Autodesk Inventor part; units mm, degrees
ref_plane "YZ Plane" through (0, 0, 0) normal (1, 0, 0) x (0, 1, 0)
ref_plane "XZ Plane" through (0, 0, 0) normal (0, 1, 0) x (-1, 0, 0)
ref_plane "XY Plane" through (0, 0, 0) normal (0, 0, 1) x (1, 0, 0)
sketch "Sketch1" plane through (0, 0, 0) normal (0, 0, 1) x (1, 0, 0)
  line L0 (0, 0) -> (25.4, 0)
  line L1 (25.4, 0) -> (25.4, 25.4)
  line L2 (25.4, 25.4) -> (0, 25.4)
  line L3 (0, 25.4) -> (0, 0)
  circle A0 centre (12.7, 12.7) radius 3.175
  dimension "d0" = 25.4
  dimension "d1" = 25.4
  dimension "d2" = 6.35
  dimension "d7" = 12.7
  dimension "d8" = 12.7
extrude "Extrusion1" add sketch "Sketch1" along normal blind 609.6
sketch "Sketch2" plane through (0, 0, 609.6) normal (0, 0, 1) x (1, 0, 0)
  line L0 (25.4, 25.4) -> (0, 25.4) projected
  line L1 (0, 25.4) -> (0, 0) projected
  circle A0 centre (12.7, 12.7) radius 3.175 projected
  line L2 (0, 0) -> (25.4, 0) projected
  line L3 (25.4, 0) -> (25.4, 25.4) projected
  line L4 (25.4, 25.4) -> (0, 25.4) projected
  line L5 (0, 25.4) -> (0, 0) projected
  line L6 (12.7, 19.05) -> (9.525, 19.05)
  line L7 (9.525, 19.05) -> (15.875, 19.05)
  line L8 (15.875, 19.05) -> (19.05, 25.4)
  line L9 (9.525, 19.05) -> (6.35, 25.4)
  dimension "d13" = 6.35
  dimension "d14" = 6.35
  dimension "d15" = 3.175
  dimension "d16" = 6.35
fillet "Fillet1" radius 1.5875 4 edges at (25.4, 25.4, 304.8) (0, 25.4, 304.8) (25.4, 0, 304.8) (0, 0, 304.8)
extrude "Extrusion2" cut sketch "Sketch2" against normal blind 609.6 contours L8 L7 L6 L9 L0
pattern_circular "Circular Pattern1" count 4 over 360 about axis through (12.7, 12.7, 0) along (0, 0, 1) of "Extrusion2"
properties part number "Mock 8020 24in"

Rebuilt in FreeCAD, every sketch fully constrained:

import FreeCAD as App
import Part
import Sketcher
Q = App.Units.Quantity


def edges_at(feature, points):
    """Names of the edges that pass closest to the given points."""
    edges = feature.Shape.Edges
    near = lambda p: min(range(len(edges)), key=lambda i: edges[i].distToShape(Part.Vertex(*p))[0])
    return sorted({f"Edge{near(p) + 1}" for p in points})


def add_polygon(sketch, points):
    """Adds a closed chain of lines whose ends are joined by coincident constraints."""
    first, n = sketch.GeometryCount, len(points)
    for a, b in zip(points, points[1:] + points[:1]):
        sketch.addGeometry(Part.LineSegment(App.Vector(*a, 0), App.Vector(*b, 0)), False)
    for i in range(n):
        sketch.addConstraint(Sketcher.Constraint("Coincident", first + i, 2, first + (i + 1) % n, 1))

doc = App.newDocument("Part")
body = doc.addObject("PartDesign::Body", "Body")

# Sketch on XY plane
sketch1 = doc.addObject("Sketcher::SketchObject", "Sketch")
body.addObject(sketch1)
sketch1.AttachmentSupport = (doc.XY_Plane, [""])
sketch1.MapMode = "FlatFace"
add_polygon(sketch1, [(0, 25.4), (0, 0), (25.4, 0), (25.4, 25.4)])  # lines 0-3
sketch1.addGeometry(Part.Circle(App.Vector(12.7, 12.7, 0), App.Vector(0, 0, 1), 3.2), False)  # 4
sketch1.addConstraint(Sketcher.Constraint("Vertical", 0))
sketch1.addConstraint(Sketcher.Constraint("Horizontal", 1))
sketch1.addConstraint(Sketcher.Constraint("Vertical", 2))
sketch1.addConstraint(Sketcher.Constraint("Horizontal", 3))
sketch1.addConstraint(Sketcher.Constraint("Coincident", 0, 2, -1, 1))
sketch1.addConstraint(Sketcher.Constraint("Equal", 3, 0))
sketch1.addConstraint(Sketcher.Constraint("Diameter", 4, Q("0.25 in")))
sketch1.addConstraint(Sketcher.Constraint("DistanceX", 1, 1, 1, 2, Q("1 in")))
sketch1.addConstraint(Sketcher.Constraint("DistanceX", -1, 1, 4, 3, Q("0.5 in")))
sketch1.addConstraint(Sketcher.Constraint("DistanceY", -1, 1, 4, 3, Q("0.5 in")))
pad1 = doc.addObject("PartDesign::Pad", "Pad")
body.addObject(pad1)
pad1.Profile = sketch1
pad1.Length = Q("24 in")
doc.recompute()

fillet = doc.addObject("PartDesign::Fillet", "Fillet")
body.addObject(fillet)
fillet.Base = (pad1, edges_at(pad1, [
    (25.4, 25.4, 304.8),
    (0, 25.4, 304.8),
    (25.4, 0, 304.8),
    (0, 0, 304.8),
]))
fillet.Radius = Q("0.0625 in")

# Sketch on XY plane
sketch2 = doc.addObject("Sketcher::SketchObject", "Sketch001")
body.addObject(sketch2)
sketch2.AttachmentSupport = (doc.XY_Plane, [""])
sketch2.MapMode = "FlatFace"
sketch2.AttachmentOffset = App.Placement(App.Vector(0, 0, 24 * 25.4), App.Rotation())
add_polygon(sketch2, [(16, 19), (19, 25), (6, 25), (10, 19)])  # lines 0-3
sketch2.addConstraint(Sketcher.Constraint("Horizontal", 1))
sketch2.addConstraint(Sketcher.Constraint("Horizontal", 3))
sketch2.addConstraint(Sketcher.Constraint("Equal", 0, 2))
sketch2.addConstraint(Sketcher.Constraint("DistanceX", 3, 1, 3, 2, Q("0.25 in")))
sketch2.addConstraint(Sketcher.Constraint("DistanceX", -1, 1, 1, 2, Q("0.25 in")))
sketch2.addConstraint(Sketcher.Constraint("DistanceY", 2, 2, 1, 2, Q("0.25 in")))
sketch2.addConstraint(Sketcher.Constraint("DistanceX", 1, 2, 1, 1, Q("0.5 in")))
sketch2.addConstraint(Sketcher.Constraint("DistanceY", -1, 1, 0, 2, Q("1 in")))
pocket1 = doc.addObject("PartDesign::Pocket", "Pocket")
body.addObject(pocket1)
pocket1.Profile = sketch2
pocket1.Length = Q("24 in")
doc.recompute()

datumline = doc.addObject("PartDesign::Line", "DatumLine")
body.addObject(datumline)
datumline.Placement = App.Placement(App.Vector(12.7, 12.7, 0), App.Rotation(App.Vector(0, 0, 1), App.Vector(0, 0, 1)))
polarpattern = doc.addObject("PartDesign::PolarPattern", "PolarPattern")
body.addObject(polarpattern)
polarpattern.Originals = [pocket1]
polarpattern.Axis = (datumline, [""])
polarpattern.Angle = 360
polarpattern.Occurrences = 4
body.Tip = polarpattern

doc.recompute()
